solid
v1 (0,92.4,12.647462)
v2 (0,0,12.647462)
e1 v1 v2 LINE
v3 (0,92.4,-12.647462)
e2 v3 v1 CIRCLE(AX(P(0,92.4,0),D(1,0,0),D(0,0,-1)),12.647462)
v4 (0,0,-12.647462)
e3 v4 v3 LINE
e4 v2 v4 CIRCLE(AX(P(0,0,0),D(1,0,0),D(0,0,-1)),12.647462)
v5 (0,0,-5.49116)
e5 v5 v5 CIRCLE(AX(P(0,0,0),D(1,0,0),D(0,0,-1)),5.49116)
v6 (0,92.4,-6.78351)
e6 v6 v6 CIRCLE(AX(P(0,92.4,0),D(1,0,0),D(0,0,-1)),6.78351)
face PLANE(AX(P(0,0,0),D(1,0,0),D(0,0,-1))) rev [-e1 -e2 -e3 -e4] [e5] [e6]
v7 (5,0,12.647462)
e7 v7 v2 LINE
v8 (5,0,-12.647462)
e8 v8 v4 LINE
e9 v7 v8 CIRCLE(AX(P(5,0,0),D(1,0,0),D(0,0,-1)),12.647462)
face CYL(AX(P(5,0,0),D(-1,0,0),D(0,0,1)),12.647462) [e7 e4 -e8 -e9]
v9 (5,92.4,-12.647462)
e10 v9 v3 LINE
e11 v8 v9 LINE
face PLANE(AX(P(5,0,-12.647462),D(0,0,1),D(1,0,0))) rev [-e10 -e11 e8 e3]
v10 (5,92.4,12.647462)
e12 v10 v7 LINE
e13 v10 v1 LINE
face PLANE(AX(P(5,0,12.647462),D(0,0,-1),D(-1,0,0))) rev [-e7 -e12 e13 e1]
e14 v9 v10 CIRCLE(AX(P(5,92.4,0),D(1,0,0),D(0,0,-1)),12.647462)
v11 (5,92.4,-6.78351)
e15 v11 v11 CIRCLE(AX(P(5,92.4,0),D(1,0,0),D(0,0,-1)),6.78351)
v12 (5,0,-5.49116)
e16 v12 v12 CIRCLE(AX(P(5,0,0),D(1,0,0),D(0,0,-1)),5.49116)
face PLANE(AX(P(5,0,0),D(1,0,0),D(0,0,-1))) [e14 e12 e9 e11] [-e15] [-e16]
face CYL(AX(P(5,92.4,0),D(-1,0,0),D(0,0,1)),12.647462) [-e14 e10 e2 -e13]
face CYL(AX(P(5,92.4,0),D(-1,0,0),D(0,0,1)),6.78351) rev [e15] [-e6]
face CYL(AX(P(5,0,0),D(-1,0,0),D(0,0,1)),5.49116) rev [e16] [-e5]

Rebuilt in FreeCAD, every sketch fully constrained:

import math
import FreeCAD as App
import Part
import Sketcher

doc = App.newDocument("Part")
body = doc.addObject("PartDesign::Body", "Body")

# Sketch on YZ plane
sketch1 = body.newObject("Sketcher::SketchObject", "Sketch")
sketch1.AttachmentSupport = (doc.getObject("YZ_Plane"), [""])
sketch1.MapMode = "FlatFace"
sketch1.addGeometry([
    Part.LineSegment(App.Vector(92, 13, 0), App.Vector(0, 13, 0)),  # 0
    Part.ArcOfCircle(Part.Circle(App.Vector(0, 0, 0), App.Vector(0, 0, 1), 13), math.radians(90), math.radians(270)),  # 1
    Part.LineSegment(App.Vector(0, -13, 0), App.Vector(92, -13, 0)),  # 2
    Part.ArcOfCircle(Part.Circle(App.Vector(92, 0, 0), App.Vector(0, 0, 1), 13), math.radians(-90), math.radians(90)),  # 3
    Part.Circle(App.Vector(0, 0, 0), App.Vector(0, 0, 1), 5),  # 4
    Part.Circle(App.Vector(92, 0, 0), App.Vector(0, 0, 1), 7),  # 5
], False)
sketch1.addConstraint([
    Sketcher.Constraint("Tangent", 0, 2, 1, 1),
    Sketcher.Constraint("Tangent", 1, 2, 2, 1),
    Sketcher.Constraint("Tangent", 2, 2, 3, 1),
    Sketcher.Constraint("Tangent", 3, 2, 0, 1),
    Sketcher.Constraint("Horizontal", 0),
    Sketcher.Constraint("Horizontal", 2),
    Sketcher.Constraint("Coincident", 1, 3, -1, 1),
    Sketcher.Constraint("Coincident", 4, 3, -1, 1),
    Sketcher.Constraint("Coincident", 5, 3, 3, 3),
    Sketcher.Constraint("DistanceX", 0, 2, 0, 1, 92.4),
    Sketcher.Constraint("Diameter", 4, 10.98232),
    Sketcher.Constraint("Diameter", 5, 13.567021),
    Sketcher.Constraint("Radius", 1, 12.647462),
])
pad1 = body.newObject("PartDesign::Pad", "Pad")
pad1.Profile = sketch1
pad1.Length = 5

doc.recompute()
